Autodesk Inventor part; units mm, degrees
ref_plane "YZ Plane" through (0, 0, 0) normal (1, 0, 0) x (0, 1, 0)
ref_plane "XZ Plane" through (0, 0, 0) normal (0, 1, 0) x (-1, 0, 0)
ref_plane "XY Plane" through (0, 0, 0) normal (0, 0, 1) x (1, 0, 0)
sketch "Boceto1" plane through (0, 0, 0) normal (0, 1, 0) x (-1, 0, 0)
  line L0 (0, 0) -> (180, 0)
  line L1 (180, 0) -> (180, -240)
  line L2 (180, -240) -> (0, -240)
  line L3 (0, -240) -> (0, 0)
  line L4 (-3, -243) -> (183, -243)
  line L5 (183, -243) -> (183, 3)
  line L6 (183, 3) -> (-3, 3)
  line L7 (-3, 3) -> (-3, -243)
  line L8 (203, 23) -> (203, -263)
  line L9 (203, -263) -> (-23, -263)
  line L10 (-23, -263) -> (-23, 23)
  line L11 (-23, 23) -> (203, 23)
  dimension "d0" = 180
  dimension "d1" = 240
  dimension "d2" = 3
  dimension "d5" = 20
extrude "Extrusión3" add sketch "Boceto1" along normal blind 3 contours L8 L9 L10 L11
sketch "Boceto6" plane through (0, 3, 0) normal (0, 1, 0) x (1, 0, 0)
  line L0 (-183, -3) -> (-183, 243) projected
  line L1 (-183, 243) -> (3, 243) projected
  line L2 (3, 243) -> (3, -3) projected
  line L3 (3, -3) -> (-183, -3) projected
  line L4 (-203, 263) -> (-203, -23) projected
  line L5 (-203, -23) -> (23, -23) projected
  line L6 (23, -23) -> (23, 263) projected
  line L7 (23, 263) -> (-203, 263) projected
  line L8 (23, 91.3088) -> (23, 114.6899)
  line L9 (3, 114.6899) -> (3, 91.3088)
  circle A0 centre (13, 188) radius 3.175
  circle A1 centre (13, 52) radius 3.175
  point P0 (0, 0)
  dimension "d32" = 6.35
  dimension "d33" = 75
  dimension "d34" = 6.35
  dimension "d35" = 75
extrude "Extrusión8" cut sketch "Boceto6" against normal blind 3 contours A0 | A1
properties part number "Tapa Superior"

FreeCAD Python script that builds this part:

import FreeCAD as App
import Part
import Sketcher

V = App.Vector

doc = App.newDocument("Part")
body = doc.addObject("PartDesign::Body", "Body")

sketch1 = body.newObject("Sketcher::SketchObject", "Sketch")
sketch1.AttachmentSupport = (doc.getObject("XZ_Plane"), [""])
sketch1.MapMode = "FlatFace"
sketch1.addGeometry([
    Part.LineSegment(V(-203, -263, 0), V(-203, 23, 0)),
    Part.LineSegment(V(-203, 23, 0), V(23, 23, 0)),
    Part.LineSegment(V(23, 23, 0), V(23, -263, 0)),
    Part.LineSegment(V(23, -263, 0), V(-203, -263, 0)),
    Part.LineSegment(V(-183, -243, 0), V(3, -243, 0)),
    Part.LineSegment(V(3, -243, 0), V(3, 3, 0)),
    Part.LineSegment(V(3, 3, 0), V(-183, 3, 0)),
    Part.LineSegment(V(-183, 3, 0), V(-183, -243, 0)),
], False)
sketch1.addConstraint([
    Sketcher.Constraint("Coincident", 0, 2, 1, 1),
    Sketcher.Constraint("Coincident", 1, 2, 2, 1),
    Sketcher.Constraint("Coincident", 2, 2, 3, 1),
    Sketcher.Constraint("Coincident", 3, 2, 0, 1),
    Sketcher.Constraint("Coincident", 4, 2, 5, 1),
    Sketcher.Constraint("Coincident", 5, 2, 6, 1),
    Sketcher.Constraint("Coincident", 6, 2, 7, 1),
    Sketcher.Constraint("Coincident", 7, 2, 4, 1),
    Sketcher.Constraint("Vertical", 0),
    Sketcher.Constraint("Horizontal", 1),
    Sketcher.Constraint("Vertical", 2),
    Sketcher.Constraint("Horizontal", 3),
    Sketcher.Constraint("Horizontal", 4),
    Sketcher.Constraint("Vertical", 5),
    Sketcher.Constraint("Horizontal", 6),
    Sketcher.Constraint("Vertical", 7),
    Sketcher.Constraint("DistanceX", -1, 1, 4, 2, 3.0),
    Sketcher.Constraint("DistanceY", -1, 1, 5, 2, 3.0),
    Sketcher.Constraint("DistanceX", 4, 2, 2, 2, 20.0),
    Sketcher.Constraint("DistanceY", 2, 2, 4, 2, 20.0),
    Sketcher.Constraint("DistanceY", 5, 2, 1, 2, 20.0),
    Sketcher.Constraint("DistanceX", 0, 2, 6, 2, 20.0),
    Sketcher.Constraint("DistanceX", 1, 1, 1, 2, 226.0),
    Sketcher.Constraint("DistanceY", 0, 1, 0, 2, 286.0),
])
pad1 = body.newObject("PartDesign::Pad", "Pad")
pad1.Profile = sketch1
pad1.Length = 3
pad1.Reversed = True

sketch2 = body.newObject("Sketcher::SketchObject", "Sketch001")
sketch2.AttachmentSupport = (doc.getObject("XZ_Plane"), [""])
sketch2.MapMode = "FlatFace"
sketch2.AttachmentOffset = App.Placement(V(0, 0, -3), App.Rotation())
sketch2.addGeometry([
    Part.Circle(V(13, -188, 0), V(0, 0, 1), 3.2),
    Part.Circle(V(13, -52, 0), V(0, 0, 1), 3.2),
], False)
sketch2.addConstraint([
    Sketcher.Constraint("Equal", 0, 1),
    Sketcher.Constraint("Vertical", 0, 3, 1, 3),
    Sketcher.Constraint("Diameter", 0, 6.35),
    Sketcher.Constraint("DistanceX", -1, 1, 0, 3, 13.0),
    Sketcher.Constraint("DistanceY", 0, 3, -1, 1, 188.0),
    Sketcher.Constraint("DistanceY", 1, 3, -1, 1, 52.0),
])
pocket1 = body.newObject("PartDesign::Pocket", "Pocket")
pocket1.Profile = sketch2
pocket1.Length = 3
pocket1.Reversed = True

doc.recompute()
